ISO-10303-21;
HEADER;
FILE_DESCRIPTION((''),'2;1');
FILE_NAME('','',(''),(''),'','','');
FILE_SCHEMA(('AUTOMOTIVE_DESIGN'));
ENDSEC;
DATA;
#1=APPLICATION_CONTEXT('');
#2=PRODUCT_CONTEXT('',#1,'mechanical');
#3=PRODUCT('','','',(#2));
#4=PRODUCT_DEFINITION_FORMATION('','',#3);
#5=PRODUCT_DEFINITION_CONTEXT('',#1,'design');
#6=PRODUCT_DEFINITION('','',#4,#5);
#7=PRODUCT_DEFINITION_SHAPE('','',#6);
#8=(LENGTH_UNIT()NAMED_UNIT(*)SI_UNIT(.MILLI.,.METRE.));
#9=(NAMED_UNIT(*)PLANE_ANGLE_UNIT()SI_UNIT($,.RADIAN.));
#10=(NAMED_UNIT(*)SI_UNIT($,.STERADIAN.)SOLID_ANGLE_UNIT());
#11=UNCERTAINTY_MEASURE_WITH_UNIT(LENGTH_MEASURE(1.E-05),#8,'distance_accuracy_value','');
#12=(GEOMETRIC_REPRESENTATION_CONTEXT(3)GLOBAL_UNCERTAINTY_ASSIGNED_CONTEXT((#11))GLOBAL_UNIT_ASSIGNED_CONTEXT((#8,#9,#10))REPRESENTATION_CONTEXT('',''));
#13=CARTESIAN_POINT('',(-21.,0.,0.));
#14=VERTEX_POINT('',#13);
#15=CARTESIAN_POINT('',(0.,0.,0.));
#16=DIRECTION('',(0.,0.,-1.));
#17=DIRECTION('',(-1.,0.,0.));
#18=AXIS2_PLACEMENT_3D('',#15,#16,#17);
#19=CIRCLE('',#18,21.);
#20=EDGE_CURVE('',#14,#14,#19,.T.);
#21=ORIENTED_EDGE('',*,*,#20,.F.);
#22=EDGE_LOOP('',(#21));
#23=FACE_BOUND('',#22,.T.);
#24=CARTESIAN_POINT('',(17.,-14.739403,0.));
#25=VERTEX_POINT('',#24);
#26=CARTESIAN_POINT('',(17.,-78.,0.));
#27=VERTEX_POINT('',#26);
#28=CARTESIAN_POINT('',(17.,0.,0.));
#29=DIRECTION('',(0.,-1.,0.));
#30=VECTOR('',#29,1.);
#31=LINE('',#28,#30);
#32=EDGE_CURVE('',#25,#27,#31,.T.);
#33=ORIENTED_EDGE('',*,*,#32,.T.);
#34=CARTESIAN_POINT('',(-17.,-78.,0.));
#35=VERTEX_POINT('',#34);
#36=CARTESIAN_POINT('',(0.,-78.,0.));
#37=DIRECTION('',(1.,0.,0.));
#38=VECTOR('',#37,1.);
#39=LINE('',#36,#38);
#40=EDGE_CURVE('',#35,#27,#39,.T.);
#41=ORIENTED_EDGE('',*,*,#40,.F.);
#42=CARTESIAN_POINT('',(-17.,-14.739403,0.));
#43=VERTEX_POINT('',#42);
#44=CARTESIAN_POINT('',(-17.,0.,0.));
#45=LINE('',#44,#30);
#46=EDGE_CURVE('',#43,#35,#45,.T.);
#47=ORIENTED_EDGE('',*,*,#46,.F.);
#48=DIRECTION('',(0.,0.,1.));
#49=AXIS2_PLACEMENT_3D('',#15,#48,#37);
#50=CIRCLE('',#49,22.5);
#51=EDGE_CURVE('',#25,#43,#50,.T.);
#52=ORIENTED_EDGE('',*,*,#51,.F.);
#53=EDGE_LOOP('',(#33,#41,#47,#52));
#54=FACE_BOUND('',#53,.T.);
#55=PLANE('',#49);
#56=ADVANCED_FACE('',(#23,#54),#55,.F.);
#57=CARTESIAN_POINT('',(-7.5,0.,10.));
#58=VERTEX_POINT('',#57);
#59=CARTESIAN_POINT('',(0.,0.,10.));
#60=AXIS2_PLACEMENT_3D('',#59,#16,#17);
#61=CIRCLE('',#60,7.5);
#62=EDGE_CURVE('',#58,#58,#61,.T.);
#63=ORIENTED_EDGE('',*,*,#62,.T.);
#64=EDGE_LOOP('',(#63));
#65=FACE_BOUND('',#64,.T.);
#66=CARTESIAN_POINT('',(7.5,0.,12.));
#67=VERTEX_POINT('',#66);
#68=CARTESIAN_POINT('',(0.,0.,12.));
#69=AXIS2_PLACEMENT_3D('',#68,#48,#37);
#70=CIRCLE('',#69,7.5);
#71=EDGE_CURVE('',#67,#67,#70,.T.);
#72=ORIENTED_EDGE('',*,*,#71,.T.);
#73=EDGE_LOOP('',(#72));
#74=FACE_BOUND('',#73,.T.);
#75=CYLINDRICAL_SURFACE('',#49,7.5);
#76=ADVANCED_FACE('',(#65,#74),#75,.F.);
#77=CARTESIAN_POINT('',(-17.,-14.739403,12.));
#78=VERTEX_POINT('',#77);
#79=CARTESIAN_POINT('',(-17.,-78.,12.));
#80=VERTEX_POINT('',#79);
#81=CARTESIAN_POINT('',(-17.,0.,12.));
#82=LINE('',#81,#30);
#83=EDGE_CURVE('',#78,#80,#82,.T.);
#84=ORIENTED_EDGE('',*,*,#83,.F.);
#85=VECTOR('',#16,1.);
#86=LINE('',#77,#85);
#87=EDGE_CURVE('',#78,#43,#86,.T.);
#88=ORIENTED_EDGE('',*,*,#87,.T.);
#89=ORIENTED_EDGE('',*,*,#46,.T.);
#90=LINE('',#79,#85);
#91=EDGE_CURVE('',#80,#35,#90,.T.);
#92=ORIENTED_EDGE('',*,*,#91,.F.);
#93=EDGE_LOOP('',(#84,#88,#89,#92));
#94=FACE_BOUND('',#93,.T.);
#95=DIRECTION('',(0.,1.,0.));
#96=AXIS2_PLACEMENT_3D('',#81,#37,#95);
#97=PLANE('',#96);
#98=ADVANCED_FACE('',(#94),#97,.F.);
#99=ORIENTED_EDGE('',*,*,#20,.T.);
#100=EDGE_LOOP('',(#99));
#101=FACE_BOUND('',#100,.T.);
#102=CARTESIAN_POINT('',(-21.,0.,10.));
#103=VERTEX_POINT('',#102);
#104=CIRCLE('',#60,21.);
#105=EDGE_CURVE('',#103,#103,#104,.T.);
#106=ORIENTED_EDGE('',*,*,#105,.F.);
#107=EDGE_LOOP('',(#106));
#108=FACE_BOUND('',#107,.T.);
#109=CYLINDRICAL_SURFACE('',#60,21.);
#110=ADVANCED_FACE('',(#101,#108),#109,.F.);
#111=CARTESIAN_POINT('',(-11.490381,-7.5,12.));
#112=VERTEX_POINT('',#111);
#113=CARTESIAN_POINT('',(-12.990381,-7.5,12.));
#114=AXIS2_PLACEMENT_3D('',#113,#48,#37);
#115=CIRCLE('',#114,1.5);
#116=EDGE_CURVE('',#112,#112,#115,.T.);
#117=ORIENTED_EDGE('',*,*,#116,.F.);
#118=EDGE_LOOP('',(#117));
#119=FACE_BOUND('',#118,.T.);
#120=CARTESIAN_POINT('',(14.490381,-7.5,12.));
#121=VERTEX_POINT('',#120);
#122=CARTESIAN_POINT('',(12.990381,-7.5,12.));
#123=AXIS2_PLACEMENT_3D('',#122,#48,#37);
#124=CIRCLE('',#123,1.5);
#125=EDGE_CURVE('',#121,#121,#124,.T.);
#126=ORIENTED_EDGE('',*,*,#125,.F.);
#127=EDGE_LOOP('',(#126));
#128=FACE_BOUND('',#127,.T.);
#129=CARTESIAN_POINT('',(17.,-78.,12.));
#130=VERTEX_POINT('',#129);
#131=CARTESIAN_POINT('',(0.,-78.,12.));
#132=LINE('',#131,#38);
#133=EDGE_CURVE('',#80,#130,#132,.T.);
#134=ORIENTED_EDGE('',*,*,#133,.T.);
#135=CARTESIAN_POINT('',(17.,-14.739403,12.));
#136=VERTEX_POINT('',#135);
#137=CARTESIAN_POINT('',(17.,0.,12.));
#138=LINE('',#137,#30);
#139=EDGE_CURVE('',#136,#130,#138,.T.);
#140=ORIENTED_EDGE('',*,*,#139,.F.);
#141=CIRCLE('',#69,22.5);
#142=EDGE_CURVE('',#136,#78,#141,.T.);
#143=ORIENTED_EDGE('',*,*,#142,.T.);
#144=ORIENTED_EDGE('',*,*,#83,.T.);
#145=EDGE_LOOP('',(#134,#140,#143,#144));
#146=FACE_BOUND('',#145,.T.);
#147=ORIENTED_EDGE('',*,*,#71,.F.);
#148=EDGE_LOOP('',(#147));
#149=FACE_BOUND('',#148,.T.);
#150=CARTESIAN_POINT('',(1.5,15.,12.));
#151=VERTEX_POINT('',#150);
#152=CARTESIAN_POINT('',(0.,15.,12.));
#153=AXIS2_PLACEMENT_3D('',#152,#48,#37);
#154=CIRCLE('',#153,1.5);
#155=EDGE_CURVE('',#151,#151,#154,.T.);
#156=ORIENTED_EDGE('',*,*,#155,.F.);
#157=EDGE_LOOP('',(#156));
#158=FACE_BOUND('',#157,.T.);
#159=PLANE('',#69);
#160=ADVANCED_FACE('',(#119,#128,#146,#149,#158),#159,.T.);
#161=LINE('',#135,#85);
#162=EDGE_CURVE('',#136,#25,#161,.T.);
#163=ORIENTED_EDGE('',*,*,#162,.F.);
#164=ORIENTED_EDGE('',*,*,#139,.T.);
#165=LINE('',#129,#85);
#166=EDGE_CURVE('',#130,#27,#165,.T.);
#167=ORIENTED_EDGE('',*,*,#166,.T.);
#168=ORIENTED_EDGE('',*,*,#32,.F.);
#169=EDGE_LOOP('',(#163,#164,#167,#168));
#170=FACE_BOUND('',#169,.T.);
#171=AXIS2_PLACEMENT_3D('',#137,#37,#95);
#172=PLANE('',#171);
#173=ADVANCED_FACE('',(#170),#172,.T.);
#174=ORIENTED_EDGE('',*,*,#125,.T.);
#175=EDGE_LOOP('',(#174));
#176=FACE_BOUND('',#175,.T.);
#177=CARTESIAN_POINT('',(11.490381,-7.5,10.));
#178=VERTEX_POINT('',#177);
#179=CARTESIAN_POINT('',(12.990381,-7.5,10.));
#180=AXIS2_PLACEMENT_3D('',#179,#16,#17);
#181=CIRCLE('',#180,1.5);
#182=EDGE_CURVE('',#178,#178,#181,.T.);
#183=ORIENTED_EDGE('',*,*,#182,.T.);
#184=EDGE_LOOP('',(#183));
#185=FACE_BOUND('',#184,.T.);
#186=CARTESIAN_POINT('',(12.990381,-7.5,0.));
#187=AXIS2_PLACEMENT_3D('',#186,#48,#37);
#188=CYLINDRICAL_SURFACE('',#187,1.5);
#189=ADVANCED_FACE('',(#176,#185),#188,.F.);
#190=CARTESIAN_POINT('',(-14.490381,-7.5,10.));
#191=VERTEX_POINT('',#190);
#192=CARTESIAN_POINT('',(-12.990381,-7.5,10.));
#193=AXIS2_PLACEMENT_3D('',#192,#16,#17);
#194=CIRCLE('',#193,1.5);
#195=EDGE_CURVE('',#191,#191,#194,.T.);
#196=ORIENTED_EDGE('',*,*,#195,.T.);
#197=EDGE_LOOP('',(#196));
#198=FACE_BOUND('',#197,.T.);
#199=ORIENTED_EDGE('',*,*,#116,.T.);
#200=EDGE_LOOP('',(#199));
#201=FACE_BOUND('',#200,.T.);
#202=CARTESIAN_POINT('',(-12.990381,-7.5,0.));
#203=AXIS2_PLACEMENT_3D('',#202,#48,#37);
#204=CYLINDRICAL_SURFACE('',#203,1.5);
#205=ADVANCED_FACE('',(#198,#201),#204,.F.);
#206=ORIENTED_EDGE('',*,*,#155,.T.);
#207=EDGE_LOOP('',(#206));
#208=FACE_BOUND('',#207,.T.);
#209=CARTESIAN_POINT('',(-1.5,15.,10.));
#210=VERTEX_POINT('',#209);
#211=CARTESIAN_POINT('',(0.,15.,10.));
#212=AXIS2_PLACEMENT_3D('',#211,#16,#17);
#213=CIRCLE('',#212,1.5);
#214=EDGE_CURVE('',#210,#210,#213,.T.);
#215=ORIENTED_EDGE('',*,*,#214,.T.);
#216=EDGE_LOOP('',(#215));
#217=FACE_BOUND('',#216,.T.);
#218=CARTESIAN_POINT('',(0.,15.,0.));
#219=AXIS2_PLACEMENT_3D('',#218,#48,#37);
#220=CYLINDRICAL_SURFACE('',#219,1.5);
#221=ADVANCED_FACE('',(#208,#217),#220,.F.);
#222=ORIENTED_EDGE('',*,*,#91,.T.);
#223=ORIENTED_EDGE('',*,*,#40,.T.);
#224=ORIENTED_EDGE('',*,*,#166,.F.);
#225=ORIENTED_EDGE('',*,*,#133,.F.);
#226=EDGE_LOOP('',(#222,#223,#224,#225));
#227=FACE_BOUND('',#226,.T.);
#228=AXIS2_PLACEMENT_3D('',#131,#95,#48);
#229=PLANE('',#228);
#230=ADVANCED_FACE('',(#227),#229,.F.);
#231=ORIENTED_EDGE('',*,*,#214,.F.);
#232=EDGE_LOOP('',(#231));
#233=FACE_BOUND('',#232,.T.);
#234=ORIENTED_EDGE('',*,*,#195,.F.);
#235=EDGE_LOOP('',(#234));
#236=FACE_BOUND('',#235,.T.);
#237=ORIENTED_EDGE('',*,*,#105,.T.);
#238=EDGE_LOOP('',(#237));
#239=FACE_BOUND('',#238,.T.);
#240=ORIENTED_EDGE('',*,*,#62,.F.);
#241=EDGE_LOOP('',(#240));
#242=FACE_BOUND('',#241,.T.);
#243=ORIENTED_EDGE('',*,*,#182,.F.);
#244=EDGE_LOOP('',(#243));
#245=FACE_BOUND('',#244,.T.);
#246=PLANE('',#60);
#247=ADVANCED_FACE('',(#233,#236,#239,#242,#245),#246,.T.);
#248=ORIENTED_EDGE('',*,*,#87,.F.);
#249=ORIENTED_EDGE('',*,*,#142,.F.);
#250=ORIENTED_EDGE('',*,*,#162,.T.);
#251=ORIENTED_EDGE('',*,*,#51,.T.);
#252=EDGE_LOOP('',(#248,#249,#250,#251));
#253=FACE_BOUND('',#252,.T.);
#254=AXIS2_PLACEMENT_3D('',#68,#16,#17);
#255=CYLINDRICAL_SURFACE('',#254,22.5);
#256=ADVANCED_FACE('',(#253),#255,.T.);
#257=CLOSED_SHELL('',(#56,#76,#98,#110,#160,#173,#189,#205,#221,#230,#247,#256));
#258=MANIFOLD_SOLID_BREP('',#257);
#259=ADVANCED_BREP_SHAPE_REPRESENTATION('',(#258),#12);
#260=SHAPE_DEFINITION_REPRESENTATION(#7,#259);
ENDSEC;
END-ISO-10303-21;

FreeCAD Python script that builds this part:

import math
import FreeCAD as App
import Part
import Sketcher
from FreeCAD import Vector
Q = App.Units.Quantity

doc = App.newDocument("Part")
body = doc.addObject("PartDesign::Body", "Body")

# Sketch on XY plane
sketch1 = body.newObject("Sketcher::SketchObject", "Sketch")
sketch1.AttachmentSupport = (doc.getObject("XY_Plane"), [""])
sketch1.MapMode = "FlatFace"
sketch1.addGeometry([
    Part.LineSegment(Vector(-17, -15, 0), Vector(-17, -78, 0)),
    Part.LineSegment(Vector(-17, -78, 0), Vector(17, -78, 0)),
    Part.LineSegment(Vector(17, -78, 0), Vector(17, -15, 0)),
    Part.ArcOfCircle(Part.Circle(Vector(0, 0, 0), Vector(0, 0, 1), 22), math.radians(-41), math.radians(221)),
], False)
sketch1.addConstraint([
    Sketcher.Constraint("Coincident", 0, 2, 1, 1),
    Sketcher.Constraint("Coincident", 1, 2, 2, 1),
    Sketcher.Constraint("Coincident", 2, 2, 3, 1),
    Sketcher.Constraint("Coincident", 3, 2, 0, 1),
    Sketcher.Constraint("Vertical", 0),
    Sketcher.Constraint("Horizontal", 1),
    Sketcher.Constraint("Vertical", 2),
    Sketcher.Constraint("Coincident", 3, 3, -1, 1),
    Sketcher.Constraint("Horizontal", 2, 2, 3, 2),
    Sketcher.Constraint("Radius", 3, Q("22.5 mm")),
    Sketcher.Constraint("DistanceX", 1, 1, 1, 2, Q("34 mm")),
    Sketcher.Constraint("DistanceY", 0, 2, -1, 1, Q("78 mm")),
])
pad1 = body.newObject("PartDesign::Pad", "Pad")
pad1.Profile = sketch1
pad1.Length = 12

# Sketch on XY plane
sketch2 = body.newObject("Sketcher::SketchObject", "Sketch001")
sketch2.AttachmentSupport = (doc.getObject("XY_Plane"), [""])
sketch2.MapMode = "FlatFace"
sketch2.addGeometry(Part.Circle(Vector(0, 0, 0), Vector(0, 0, 1), 21), False)
sketch2.addConstraint([
    Sketcher.Constraint("Coincident", 0, 3, -1, 1),
    Sketcher.Constraint("Diameter", 0, Q("42 mm")),
])
pocket1 = body.newObject("PartDesign::Pocket", "Pocket")
pocket1.Profile = sketch2
pocket1.Length = 10
pocket1.Reversed = True

# Sketch on XY plane
sketch3 = body.newObject("Sketcher::SketchObject", "Sketch002")
sketch3.AttachmentSupport = (doc.getObject("XY_Plane"), [""])
sketch3.MapMode = "FlatFace"
sketch3.AttachmentOffset = App.Placement(Vector(0, 0, 12), App.Rotation())
sketch3.addGeometry([
    Part.Circle(Vector(0, 15, 0), Vector(0, 0, 1), 1.5),
    Part.Circle(Vector(13, -7.5, 0), Vector(0, 0, 1), 1.5),
    Part.Circle(Vector(-13, -7.5, 0), Vector(0, 0, 1), 1.5),
    Part.Circle(Vector(0, 0, 0), Vector(0, 0, 1), 7.5),
], False)
sketch3.addConstraint([
    Sketcher.Constraint("Coincident", 3, 3, -1, 1),
    Sketcher.Constraint("Equal", 0, 1),
    Sketcher.Constraint("Equal", 1, 2),
    Sketcher.Constraint("Symmetric", 1, 3, 2, 3, -2),
    Sketcher.Constraint("PointOnObject", 0, 3, -2),
    Sketcher.Constraint("Diameter", 0, Q("3 mm")),
    Sketcher.Constraint("Diameter", 3, Q("15 mm")),
    Sketcher.Constraint("DistanceY", -1, 1, 0, 3, Q("15 mm")),
    Sketcher.Constraint("DistanceY", 1, 3, -1, 1, Q("7.5 mm")),
    Sketcher.Constraint("DistanceX", -1, 1, 1, 3, Q("12.990381 mm")),
])
pocket2 = body.newObject("PartDesign::Pocket", "Pocket001")
pocket2.Profile = sketch3
pocket2.Type = "ThroughAll"

doc.recompute()
